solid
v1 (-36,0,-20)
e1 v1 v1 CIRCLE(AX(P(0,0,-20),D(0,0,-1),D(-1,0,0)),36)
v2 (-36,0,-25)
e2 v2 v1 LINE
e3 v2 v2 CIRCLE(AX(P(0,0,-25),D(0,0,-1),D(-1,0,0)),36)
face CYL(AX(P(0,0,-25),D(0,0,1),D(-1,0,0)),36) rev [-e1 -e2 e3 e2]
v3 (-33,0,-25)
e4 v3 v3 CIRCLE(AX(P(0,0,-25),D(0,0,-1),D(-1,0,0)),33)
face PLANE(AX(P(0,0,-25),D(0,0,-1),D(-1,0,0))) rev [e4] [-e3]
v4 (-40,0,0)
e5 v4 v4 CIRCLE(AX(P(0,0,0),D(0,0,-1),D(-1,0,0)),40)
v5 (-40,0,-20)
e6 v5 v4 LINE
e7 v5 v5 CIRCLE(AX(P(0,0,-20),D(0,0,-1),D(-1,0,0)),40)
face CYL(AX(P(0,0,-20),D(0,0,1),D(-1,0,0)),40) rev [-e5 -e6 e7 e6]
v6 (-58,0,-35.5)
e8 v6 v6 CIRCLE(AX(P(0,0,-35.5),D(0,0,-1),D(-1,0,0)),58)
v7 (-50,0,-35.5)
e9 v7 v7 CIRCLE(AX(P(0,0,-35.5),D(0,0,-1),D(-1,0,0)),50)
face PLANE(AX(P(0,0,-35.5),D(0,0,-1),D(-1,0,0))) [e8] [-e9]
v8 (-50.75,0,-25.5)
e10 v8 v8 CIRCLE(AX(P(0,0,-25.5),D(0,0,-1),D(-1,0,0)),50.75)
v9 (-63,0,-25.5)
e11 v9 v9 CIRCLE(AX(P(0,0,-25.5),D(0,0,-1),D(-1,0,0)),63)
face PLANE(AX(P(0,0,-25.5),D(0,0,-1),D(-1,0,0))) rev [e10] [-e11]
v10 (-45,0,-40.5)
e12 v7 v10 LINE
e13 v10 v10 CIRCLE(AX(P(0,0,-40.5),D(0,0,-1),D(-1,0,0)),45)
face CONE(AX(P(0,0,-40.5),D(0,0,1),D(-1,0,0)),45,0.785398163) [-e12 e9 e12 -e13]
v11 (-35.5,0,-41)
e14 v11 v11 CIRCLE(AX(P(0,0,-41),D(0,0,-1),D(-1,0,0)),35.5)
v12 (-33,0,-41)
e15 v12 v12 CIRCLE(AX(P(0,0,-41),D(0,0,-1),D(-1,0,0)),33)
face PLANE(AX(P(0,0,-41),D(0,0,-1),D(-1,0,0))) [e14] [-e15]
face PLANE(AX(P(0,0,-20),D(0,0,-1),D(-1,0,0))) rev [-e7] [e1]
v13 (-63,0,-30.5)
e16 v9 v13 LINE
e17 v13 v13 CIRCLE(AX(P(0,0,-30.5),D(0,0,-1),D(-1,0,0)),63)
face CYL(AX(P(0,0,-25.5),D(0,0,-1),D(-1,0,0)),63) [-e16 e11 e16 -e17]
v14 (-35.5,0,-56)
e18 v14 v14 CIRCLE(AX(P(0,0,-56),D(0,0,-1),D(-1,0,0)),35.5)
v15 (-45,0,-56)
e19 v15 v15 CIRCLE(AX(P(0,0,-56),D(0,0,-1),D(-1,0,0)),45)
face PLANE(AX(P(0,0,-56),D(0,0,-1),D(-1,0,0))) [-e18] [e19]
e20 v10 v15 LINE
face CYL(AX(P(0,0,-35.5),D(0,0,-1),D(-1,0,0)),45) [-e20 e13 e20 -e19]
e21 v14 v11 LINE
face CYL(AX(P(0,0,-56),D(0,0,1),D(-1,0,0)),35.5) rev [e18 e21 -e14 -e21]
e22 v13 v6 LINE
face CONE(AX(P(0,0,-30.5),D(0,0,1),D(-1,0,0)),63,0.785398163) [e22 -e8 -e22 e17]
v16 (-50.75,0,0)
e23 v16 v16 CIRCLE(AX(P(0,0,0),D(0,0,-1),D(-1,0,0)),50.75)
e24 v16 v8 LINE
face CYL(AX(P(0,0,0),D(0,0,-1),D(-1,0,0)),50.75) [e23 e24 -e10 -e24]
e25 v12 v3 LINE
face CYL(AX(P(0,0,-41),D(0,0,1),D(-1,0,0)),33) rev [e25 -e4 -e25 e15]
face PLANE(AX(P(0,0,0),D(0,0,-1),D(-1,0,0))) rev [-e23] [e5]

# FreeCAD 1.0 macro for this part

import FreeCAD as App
import Part
import Sketcher

V = App.Vector


def edges_at(feature, points):
    """Names of the edges that pass closest to the given points."""
    edges = feature.Shape.Edges
    near = lambda p: min(range(len(edges)), key=lambda i: edges[i].distToShape(Part.Vertex(*p))[0])
    return sorted({f"Edge{near(p) + 1}" for p in points})


def add_polygon(sketch, points):
    """Adds a closed chain of lines whose ends are joined by coincident constraints."""
    first, n = sketch.GeometryCount, len(points)
    for a, b in zip(points, points[1:] + points[:1]):
        sketch.addGeometry(Part.LineSegment(App.Vector(*a, 0), App.Vector(*b, 0)), False)
    for i in range(n):
        sketch.addConstraint(Sketcher.Constraint("Coincident", first + i, 2, first + (i + 1) % n, 1))

doc = App.newDocument("Part")
params = doc.addObject("Spreadsheet::Sheet", "Params")
for row, (alias, value) in enumerate([
    ("sketch1_width", "18 mm"),
    ("sketch1_width2", "3 mm"),
    ("sketch1_width3", "4 mm"),
    ("sketch1_height", "20 mm"),
    ("sketch1_height2", "10 mm"),
    ("revolution_angle", "360 deg"),
    ("chamfer_size", "5 mm"),
], start=1):
    params.set(f"A{row}", alias)
    params.set(f"B{row}", "=" + value)
    params.setAlias(f"B{row}", alias)

body = doc.addObject("PartDesign::Body", "Body")

# Sketch on XZ plane
sketch1 = body.newObject("Sketcher::SketchObject", "Sketch")
sketch1.AttachmentSupport = (doc.getObject("XZ_Plane"), [""])
sketch1.MapMode = "FlatFace"
add_polygon(sketch1, [(-40, -20), (-40, 0), (-50.8, 0), (-50.8, -25.5), (-63, -25.5), (-63, -35.5), (-45, -35.5), (-45, -56), (-35.5, -56), (-35.5, -41), (-33, -41), (-33, -25), (-36, -25), (-36, -20)])  # lines 0-13
sketch1.addConstraint([
    Sketcher.Constraint("Vertical", 0),
    Sketcher.Constraint("Horizontal", 1),
    Sketcher.Constraint("Vertical", 2),
    Sketcher.Constraint("Horizontal", 3),
    Sketcher.Constraint("Vertical", 4),
    Sketcher.Constraint("Horizontal", 5),
    Sketcher.Constraint("Vertical", 6),
    Sketcher.Constraint("Horizontal", 7),
    Sketcher.Constraint("Vertical", 8),
    Sketcher.Constraint("Horizontal", 9),
    Sketcher.Constraint("Vertical", 10),
    Sketcher.Constraint("Horizontal", 11),
    Sketcher.Constraint("Vertical", 12),
    Sketcher.Constraint("Horizontal", 13),
    Sketcher.Constraint("PointOnObject", 0, 2, -1),
    Sketcher.Constraint("DistanceX", 5, 1, 5, 2, 18.0),
    Sketcher.Constraint("DistanceX", 11, 2, 11, 1, 3.0),
    Sketcher.Constraint("DistanceX", 13, 2, 13, 1, 4.0),
    Sketcher.Constraint("DistanceY", 0, 1, 0, 2, 20.0),
    Sketcher.Constraint("DistanceY", 4, 2, 4, 1, 10.0),
    Sketcher.Constraint("DistanceY", 8, 1, 8, 2, 15.0),
    Sketcher.Constraint("DistanceY", 10, 1, 10, 2, 16.0),
    Sketcher.Constraint("DistanceY", 12, 1, 12, 2, 5.0),
    Sketcher.Constraint("DistanceX", 7, 1, 7, 2, 9.5),
    Sketcher.Constraint("DistanceX", 9, 1, 9, 2, 2.5),
    Sketcher.Constraint("DistanceY", 2, 2, 2, 1, 25.5),
    Sketcher.Constraint("DistanceX", 0, 2, -1, 1, 40.0),
    Sketcher.Constraint("DistanceX", 1, 2, 1, 1, 10.75),
])
sketch1.setExpression("Constraints[29]", "Params.sketch1_width")
sketch1.setExpression("Constraints[30]", "Params.sketch1_width2")
sketch1.setExpression("Constraints[31]", "Params.sketch1_width3")
sketch1.setExpression("Constraints[32]", "Params.sketch1_height")
sketch1.setExpression("Constraints[33]", "Params.sketch1_height2")
revolution = body.newObject("PartDesign::Revolution", "Revolution")
revolution.Profile = sketch1
revolution.ReferenceAxis = (sketch1, ["V_Axis"])
revolution.setExpression("Angle", "Params.revolution_angle")
doc.recompute()

chamfer = body.newObject("PartDesign::Chamfer", "Chamfer")
chamfer.Base = (revolution, edges_at(revolution, [(63, 0, -35.5), (45, 0, -35.5)]))
chamfer.setExpression("Size", "Params.chamfer_size")

doc.recompute()
